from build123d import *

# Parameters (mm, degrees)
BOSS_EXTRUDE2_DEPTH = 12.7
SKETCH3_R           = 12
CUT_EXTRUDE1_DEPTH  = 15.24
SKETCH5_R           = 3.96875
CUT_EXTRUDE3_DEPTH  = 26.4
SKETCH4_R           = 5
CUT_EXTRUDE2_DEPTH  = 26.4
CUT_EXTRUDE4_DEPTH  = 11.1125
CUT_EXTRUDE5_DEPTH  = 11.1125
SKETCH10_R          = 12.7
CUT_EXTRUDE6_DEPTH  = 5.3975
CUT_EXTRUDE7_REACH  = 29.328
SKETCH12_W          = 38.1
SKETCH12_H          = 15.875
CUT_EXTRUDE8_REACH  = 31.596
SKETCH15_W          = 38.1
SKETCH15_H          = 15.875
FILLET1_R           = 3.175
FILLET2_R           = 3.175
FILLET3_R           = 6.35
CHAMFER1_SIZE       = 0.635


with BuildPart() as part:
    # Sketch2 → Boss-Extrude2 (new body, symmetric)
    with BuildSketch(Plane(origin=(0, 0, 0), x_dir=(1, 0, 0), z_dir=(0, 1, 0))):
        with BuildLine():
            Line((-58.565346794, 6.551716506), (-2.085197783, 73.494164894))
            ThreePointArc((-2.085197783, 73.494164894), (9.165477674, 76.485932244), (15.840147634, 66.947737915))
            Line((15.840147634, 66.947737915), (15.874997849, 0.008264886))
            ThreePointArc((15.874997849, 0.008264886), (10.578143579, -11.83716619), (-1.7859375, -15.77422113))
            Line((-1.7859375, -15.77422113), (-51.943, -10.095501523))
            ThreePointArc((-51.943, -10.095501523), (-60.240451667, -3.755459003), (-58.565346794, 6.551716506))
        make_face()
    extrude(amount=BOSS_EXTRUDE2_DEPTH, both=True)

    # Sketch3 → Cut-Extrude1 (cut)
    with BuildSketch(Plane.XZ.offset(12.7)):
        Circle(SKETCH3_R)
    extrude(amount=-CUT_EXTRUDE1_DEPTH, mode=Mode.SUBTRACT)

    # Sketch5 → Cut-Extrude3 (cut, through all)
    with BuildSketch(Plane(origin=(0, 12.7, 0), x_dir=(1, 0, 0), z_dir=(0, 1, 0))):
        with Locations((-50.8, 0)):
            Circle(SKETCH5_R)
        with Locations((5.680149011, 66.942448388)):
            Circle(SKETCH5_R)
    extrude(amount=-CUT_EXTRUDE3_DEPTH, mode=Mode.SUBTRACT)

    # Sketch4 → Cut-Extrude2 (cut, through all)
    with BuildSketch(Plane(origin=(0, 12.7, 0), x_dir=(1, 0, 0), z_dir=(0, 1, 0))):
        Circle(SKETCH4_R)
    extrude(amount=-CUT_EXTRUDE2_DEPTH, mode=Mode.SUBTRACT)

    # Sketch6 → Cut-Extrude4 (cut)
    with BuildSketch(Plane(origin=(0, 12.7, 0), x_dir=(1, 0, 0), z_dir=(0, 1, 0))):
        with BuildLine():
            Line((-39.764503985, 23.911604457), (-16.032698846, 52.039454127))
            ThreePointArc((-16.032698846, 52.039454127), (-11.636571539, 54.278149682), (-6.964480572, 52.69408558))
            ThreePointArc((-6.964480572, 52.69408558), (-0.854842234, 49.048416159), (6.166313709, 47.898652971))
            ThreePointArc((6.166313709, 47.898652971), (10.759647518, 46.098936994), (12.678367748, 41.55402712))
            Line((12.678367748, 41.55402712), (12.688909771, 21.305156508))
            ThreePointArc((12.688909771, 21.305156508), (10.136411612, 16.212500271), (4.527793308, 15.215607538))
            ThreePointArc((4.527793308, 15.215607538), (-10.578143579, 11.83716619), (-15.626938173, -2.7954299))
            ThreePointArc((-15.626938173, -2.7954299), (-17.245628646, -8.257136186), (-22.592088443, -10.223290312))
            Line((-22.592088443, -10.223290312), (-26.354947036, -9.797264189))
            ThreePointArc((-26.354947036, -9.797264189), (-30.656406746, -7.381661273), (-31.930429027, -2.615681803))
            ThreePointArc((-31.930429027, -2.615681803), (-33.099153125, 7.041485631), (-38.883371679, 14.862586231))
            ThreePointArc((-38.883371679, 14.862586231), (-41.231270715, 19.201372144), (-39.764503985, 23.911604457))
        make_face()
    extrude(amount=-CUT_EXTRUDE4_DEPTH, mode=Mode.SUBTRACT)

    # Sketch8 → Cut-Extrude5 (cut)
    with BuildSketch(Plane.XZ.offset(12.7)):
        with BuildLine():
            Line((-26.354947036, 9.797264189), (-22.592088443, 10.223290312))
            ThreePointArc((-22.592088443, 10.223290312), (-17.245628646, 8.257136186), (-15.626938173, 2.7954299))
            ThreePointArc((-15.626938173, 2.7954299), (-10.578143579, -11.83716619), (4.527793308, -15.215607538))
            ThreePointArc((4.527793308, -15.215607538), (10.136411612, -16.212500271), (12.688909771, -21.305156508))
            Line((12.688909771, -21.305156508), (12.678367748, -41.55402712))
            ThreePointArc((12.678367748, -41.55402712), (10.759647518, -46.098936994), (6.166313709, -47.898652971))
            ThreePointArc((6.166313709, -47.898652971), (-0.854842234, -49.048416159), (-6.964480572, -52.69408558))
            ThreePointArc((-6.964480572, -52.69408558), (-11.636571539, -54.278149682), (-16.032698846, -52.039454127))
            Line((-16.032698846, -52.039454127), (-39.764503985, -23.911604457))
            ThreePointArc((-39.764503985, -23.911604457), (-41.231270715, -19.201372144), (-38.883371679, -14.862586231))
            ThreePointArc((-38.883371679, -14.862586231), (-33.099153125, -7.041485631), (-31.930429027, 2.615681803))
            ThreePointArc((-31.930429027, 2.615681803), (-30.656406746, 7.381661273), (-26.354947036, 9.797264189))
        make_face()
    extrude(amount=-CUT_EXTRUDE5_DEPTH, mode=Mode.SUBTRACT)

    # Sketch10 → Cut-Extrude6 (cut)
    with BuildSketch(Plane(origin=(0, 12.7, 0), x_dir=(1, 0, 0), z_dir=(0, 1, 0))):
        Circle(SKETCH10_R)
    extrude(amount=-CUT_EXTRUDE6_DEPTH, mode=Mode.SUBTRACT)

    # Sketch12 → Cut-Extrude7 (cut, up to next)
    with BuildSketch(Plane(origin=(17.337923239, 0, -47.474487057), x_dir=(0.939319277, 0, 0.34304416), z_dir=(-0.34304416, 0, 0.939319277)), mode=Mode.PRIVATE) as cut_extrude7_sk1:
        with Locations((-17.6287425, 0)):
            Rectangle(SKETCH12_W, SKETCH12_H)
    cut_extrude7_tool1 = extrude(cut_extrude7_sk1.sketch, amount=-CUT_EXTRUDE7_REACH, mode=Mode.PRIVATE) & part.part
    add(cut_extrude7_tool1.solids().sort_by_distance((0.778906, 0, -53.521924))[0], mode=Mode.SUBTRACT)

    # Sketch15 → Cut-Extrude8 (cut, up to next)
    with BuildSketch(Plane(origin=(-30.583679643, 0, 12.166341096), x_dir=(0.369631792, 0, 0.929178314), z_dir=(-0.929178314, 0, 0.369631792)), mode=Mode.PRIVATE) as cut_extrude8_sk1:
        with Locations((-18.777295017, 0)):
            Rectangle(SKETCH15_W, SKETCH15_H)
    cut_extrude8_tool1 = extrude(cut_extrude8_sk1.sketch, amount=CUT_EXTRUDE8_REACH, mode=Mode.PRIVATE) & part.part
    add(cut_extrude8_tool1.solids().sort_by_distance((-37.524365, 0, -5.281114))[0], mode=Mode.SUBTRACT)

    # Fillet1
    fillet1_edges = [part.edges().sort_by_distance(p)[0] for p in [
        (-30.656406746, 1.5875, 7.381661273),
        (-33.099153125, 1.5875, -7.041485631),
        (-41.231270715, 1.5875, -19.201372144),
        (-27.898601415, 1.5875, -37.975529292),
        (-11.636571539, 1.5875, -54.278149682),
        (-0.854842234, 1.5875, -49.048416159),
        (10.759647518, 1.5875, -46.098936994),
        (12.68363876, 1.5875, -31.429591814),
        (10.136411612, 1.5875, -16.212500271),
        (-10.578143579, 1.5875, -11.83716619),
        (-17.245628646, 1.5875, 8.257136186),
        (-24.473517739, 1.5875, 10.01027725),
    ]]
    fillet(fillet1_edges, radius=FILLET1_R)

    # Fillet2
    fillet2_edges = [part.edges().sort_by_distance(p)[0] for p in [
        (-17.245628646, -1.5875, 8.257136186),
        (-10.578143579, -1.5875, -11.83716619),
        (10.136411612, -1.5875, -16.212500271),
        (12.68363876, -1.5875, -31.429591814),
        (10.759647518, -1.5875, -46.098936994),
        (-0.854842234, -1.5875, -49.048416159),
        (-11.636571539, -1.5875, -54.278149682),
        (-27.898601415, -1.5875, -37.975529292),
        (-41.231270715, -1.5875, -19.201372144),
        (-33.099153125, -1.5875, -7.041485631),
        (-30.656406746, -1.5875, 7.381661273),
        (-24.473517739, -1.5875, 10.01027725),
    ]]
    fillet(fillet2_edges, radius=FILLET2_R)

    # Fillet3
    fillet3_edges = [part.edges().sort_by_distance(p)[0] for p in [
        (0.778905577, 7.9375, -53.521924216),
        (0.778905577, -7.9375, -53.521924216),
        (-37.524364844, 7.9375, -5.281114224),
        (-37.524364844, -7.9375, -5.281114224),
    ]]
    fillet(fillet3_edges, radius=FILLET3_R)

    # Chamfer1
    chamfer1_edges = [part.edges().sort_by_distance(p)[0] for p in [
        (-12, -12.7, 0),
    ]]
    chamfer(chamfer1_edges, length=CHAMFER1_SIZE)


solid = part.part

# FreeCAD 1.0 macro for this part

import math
import FreeCAD as App
import Part
import Sketcher

V = App.Vector
Q = App.Units.Quantity


def edges_at(feature, points):
    """Names of the edges that pass closest to the given points."""
    edges = feature.Shape.Edges
    near = lambda p: min(range(len(edges)), key=lambda i: edges[i].distToShape(Part.Vertex(*p))[0])
    return sorted({f"Edge{near(p) + 1}" for p in points})

doc = App.newDocument("Part")
body = doc.addObject("PartDesign::Body", "Body")

# Sketch on XZ plane
sketch1 = doc.addObject("Sketcher::SketchObject", "Sketch")
body.addObject(sketch1)
sketch1.AttachmentSupport = (doc.XZ_Plane, [""])
sketch1.MapMode = "FlatFace"
sketch1.addGeometry([
    Part.LineSegment(V(-2, -73, 0), V(-59, -7, 0)),  # 0
    Part.ArcOfCircle(Part.Circle(V(-51, 0, 0), V(0, 0, 1), 10), math.radians(96), math.radians(220)),  # 1
    Part.LineSegment(V(-52, 10, 0), V(-2, 16, 0)),  # 2
    Part.ArcOfCircle(Part.Circle(V(0, 0, 0), V(0, 0, 1), 16), math.radians(0), math.radians(96)),  # 3
    Part.LineSegment(V(16, 0, 0), V(16, -67, 0)),  # 4
    Part.ArcOfCircle(Part.Circle(V(6, -67, 0), V(0, 0, 1), 10), math.radians(-140), math.radians(0)),  # 5
], False)
sketch1.addConstraint([
    Sketcher.Constraint("Tangent", 0, 2, 1, 2),
    Sketcher.Constraint("Tangent", 1, 1, 2, 1),
    Sketcher.Constraint("Tangent", 2, 2, 3, 2),
    Sketcher.Constraint("Tangent", 3, 1, 4, 1),
    Sketcher.Constraint("Tangent", 4, 2, 5, 2),
    Sketcher.Constraint("Tangent", 5, 1, 0, 1),
    Sketcher.Constraint("Coincident", 3, 3, -1, 1),
    Sketcher.Constraint("Equal", 1, 5),
    Sketcher.Constraint("PointOnObject", 1, 3, -1),
    Sketcher.Constraint("Radius", 1, Q("0.4 in")),
    Sketcher.Constraint("DistanceX", 1, 3, -1, 1, Q("2 in")),
    Sketcher.Constraint("Radius", 3, Q("0.625 in")),
    Sketcher.Constraint("DistanceY", 5, 1, 3, 1, Q("73.4859 mm")),
    Sketcher.Constraint("Distance", 0, Q("87.58595 mm")),
])
pad1 = doc.addObject("PartDesign::Pad", "Pad")
body.addObject(pad1)
pad1.Profile = sketch1
pad1.Length = Q("1 in")
pad1.Midplane = True

# Sketch on XZ plane
sketch2 = doc.addObject("Sketcher::SketchObject", "Sketch001")
body.addObject(sketch2)
sketch2.AttachmentSupport = (doc.XZ_Plane, [""])
sketch2.MapMode = "FlatFace"
sketch2.AttachmentOffset = App.Placement(V(0, 0, 0.5 * 25.4), App.Rotation())
sketch2.addGeometry(Part.Circle(V(0, 0, 0), V(0, 0, 1), 12), False)
sketch2.addConstraint([
    Sketcher.Constraint("Coincident", 0, 3, -1, 1),
    Sketcher.Constraint("Diameter", 0, Q("24 mm")),
])
pocket1 = doc.addObject("PartDesign::Pocket", "Pocket")
body.addObject(pocket1)
pocket1.Profile = sketch2
pocket1.Length = Q("0.6 in")

# Sketch on XZ plane
sketch3 = doc.addObject("Sketcher::SketchObject", "Sketch002")
body.addObject(sketch3)
sketch3.AttachmentSupport = (doc.XZ_Plane, [""])
sketch3.MapMode = "FlatFace"
sketch3.AttachmentOffset = App.Placement(V(0, 0, -0.5 * 25.4), App.Rotation())
sketch3.addGeometry([
    Part.Circle(V(-50.8, 0, 0), V(0, 0, 1), 4),
    Part.Circle(V(5.7, -66.9, 0), V(0, 0, 1), 4),
], False)
sketch3.addConstraint([
    Sketcher.Constraint("Equal", 0, 1),
    Sketcher.Constraint("PointOnObject", 0, 3, -1),
    Sketcher.Constraint("Diameter", 0, Q("0.3125 in")),
    Sketcher.Constraint("DistanceX", 0, 3, -1, 1, Q("2 in")),
    Sketcher.Constraint("DistanceX", -1, 1, 1, 3, Q("5.680149 mm")),
    Sketcher.Constraint("DistanceY", 1, 3, -1, 1, Q("66.942448 mm")),
])
pocket2 = doc.addObject("PartDesign::Pocket", "Pocket001")
body.addObject(pocket2)
pocket2.Profile = sketch3
pocket2.Type = "ThroughAll"
pocket2.Reversed = True

# Sketch on XZ plane
sketch4 = doc.addObject("Sketcher::SketchObject", "Sketch003")
body.addObject(sketch4)
sketch4.AttachmentSupport = (doc.XZ_Plane, [""])
sketch4.MapMode = "FlatFace"
sketch4.AttachmentOffset = App.Placement(V(0, 0, -0.5 * 25.4), App.Rotation())
sketch4.addGeometry(Part.Circle(V(0, 0, 0), V(0, 0, 1), 5), False)
sketch4.addConstraint([
    Sketcher.Constraint("Coincident", 0, 3, -1, 1),
    Sketcher.Constraint("Diameter", 0, Q("10 mm")),
])
pocket3 = doc.addObject("PartDesign::Pocket", "Pocket002")
body.addObject(pocket3)
pocket3.Profile = sketch4
pocket3.Type = "ThroughAll"
pocket3.Reversed = True

# Sketch on XZ plane
sketch5 = doc.addObject("Sketcher::SketchObject", "Sketch004")
body.addObject(sketch5)
sketch5.AttachmentSupport = (doc.XZ_Plane, [""])
sketch5.MapMode = "FlatFace"
sketch5.AttachmentOffset = App.Placement(V(0, 0, -0.5 * 25.4), App.Rotation())
sketch5.addGeometry([
    Part.LineSegment(V(-16, -52, 0), V(-39.8, -23.9, 0)),  # 0
    Part.ArcOfCircle(Part.Circle(V(-34.9, -19.8, 0), V(0, 0, 1), 6.3), math.radians(129), math.radians(220)),  # 1
    Part.ArcOfCircle(Part.Circle(V(-50.8, 0, 0), V(0, 0, 1), 19.1), math.radians(-51), math.radians(8)),  # 2
    Part.ArcOfCircle(Part.Circle(V(-25.6, 3.5, 0), V(0, 0, 1), 6.3), math.radians(96), math.radians(188)),  # 3
    Part.LineSegment(V(-26.4, 9.8, 0), V(-22.6, 10.2, 0)),  # 4
    Part.ArcOfCircle(Part.Circle(V(-21.9, 3.9, 0), V(0, 0, 1), 6.3), math.radians(-10), math.radians(96)),  # 5
    Part.ArcOfCircle(Part.Circle(V(0, 0, 0), V(0, 0, 1), 15.9), math.radians(170), math.radians(287)),  # 6
    Part.ArcOfCircle(Part.Circle(V(6.3, -21.3, 0), V(0, 0, 1), 6.4), math.radians(0), math.radians(107)),  # 7
    Part.LineSegment(V(12.7, -21.3, 0), V(12.7, -41.6, 0)),  # 8
    Part.ArcOfCircle(Part.Circle(V(6.3, -41.6, 0), V(0, 0, 1), 6.3), math.radians(-91), math.radians(0)),  # 9
    Part.ArcOfCircle(Part.Circle(V(5.7, -66.9, 0), V(0, 0, 1), 19.1), math.radians(89), math.radians(132)),  # 10
    Part.ArcOfCircle(Part.Circle(V(-11.2, -47.9, 0), V(0, 0, 1), 6.3), math.radians(-140), math.radians(-48)),  # 11
], False)
sketch5.addConstraint([
    Sketcher.Constraint("Tangent", 0, 2, 1, 2),
    Sketcher.Constraint("Tangent", 1, 1, 2, 1),
    Sketcher.Constraint("Tangent", 2, 2, 3, 2),
    Sketcher.Constraint("Tangent", 3, 1, 4, 1),
    Sketcher.Constraint("Tangent", 4, 2, 5, 2),
    Sketcher.Constraint("Tangent", 5, 1, 6, 1),
    Sketcher.Constraint("Tangent", 6, 2, 7, 2),
    Sketcher.Constraint("Tangent", 7, 1, 8, 1),
    Sketcher.Constraint("Tangent", 8, 2, 9, 2),
    Sketcher.Constraint("Tangent", 9, 1, 10, 1),
    Sketcher.Constraint("Tangent", 10, 2, 11, 2),
    Sketcher.Constraint("Tangent", 11, 1, 0, 1),
    Sketcher.Constraint("Coincident", 6, 3, -1, 1),
    Sketcher.Constraint("Equal", 1, 3),
    Sketcher.Constraint("Equal", 3, 5),
    Sketcher.Constraint("Equal", 5, 7),
    Sketcher.Constraint("Equal", 7, 9),
    Sketcher.Constraint("Equal", 2, 10),
    Sketcher.Constraint("Equal", 9, 11),
    Sketcher.Constraint("PointOnObject", 2, 3, -1),
    Sketcher.Constraint("Radius", 1, Q("0.25 in")),
    Sketcher.Constraint("Radius", 2, Q("0.75 in")),
    Sketcher.Constraint("DistanceX", 2, 3, -1, 1, Q("2 in")),
    Sketcher.Constraint("Radius", 6, Q("0.625 in")),
    Sketcher.Constraint("Distance", 4, Q("3.786899 mm")),
    Sketcher.Constraint("DistanceY", -1, 1, 5, 3, Q("3.913602 mm")),
    Sketcher.Constraint("DistanceX", 11, 1, -1, 1, Q("16.032699 mm")),
    Sketcher.Constraint("DistanceX", 1, 1, 3, 3, Q("13.2428 mm")),
    Sketcher.Constraint("DistanceY", 11, 1, 9, 1, Q("4.140801 mm")),
    Sketcher.Constraint("DistanceX", -1, 1, 7, 3, Q("6.338911 mm")),
    Sketcher.Constraint("DistanceX", -1, 1, 9, 3, Q("6.328369 mm")),
    Sketcher.Constraint("DistanceY", 9, 3, -1, 1, Q("41.550721 mm")),
])
pocket4 = doc.addObject("PartDesign::Pocket", "Pocket003")
body.addObject(pocket4)
pocket4.Profile = sketch5
pocket4.Length = Q("0.4375 in")
pocket4.Reversed = True

# Sketch on XZ plane
sketch6 = doc.addObject("Sketcher::SketchObject", "Sketch005")
body.addObject(sketch6)
sketch6.AttachmentSupport = (doc.XZ_Plane, [""])
sketch6.MapMode = "FlatFace"
sketch6.AttachmentOffset = App.Placement(V(0, 0, 0.5 * 25.4), App.Rotation())
sketch6.addGeometry([
    Part.LineSegment(V(-22.592088, 10.22329, 0), V(-26.354947, 9.797264, 0)),  # 0
    Part.ArcOfCircle(Part.Circle(V(-25.640572, 3.487576, 0), V(0, 0, 1), 6.35), math.radians(96.45945), math.radians(187.891994)),  # 1
    Part.ArcOfCircle(Part.Circle(V(-50.8, 0, 0), V(0, 0, 1), 19.05), math.radians(-51.277815), math.radians(7.891994)),  # 2
    Part.ArcOfCircle(Part.Circle(V(-34.911162, -19.816782, 0), V(0, 0, 1), 6.35), math.radians(128.722185), math.radians(220.154729)),  # 3
    Part.LineSegment(V(-39.764504, -23.911604, 0), V(-16.032699, -52.039454, 0)),  # 4
    Part.ArcOfCircle(Part.Circle(V(-11.179357, -47.944631, 0), V(0, 0, 1), 6.35), math.radians(-139.845271), math.radians(-48.412727)),  # 5
    Part.ArcOfCircle(Part.Circle(V(5.680149, -66.942448, 0), V(0, 0, 1), 19.05), math.radians(88.537627), math.radians(131.587273)),  # 6
    Part.ArcOfCircle(Part.Circle(V(6.328369, -41.550721, 0), V(0, 0, 1), 6.35), math.radians(-91.462373), math.radians(-0.029829)),  # 7
    Part.LineSegment(V(12.678368, -41.554027, 0), V(12.68891, -21.305157, 0)),  # 8
    Part.ArcOfCircle(Part.Circle(V(6.338911, -21.301851, 0), V(0, 0, 1), 6.35), math.radians(-0.029829), math.radians(106.57172)),  # 9
    Part.ArcOfCircle(Part.Circle(V(0, 0, 0), V(0, 0, 1), 15.875), math.radians(169.8579), math.radians(286.57172)),  # 10
    Part.ArcOfCircle(Part.Circle(V(-21.877713, 3.913602, 0), V(0, 0, 1), 6.35), math.radians(-10.1421), math.radians(96.45945)),  # 11
], False)
sketch6.addConstraint([
    Sketcher.Constraint("Coincident", 0, 2, 1, 1),
    Sketcher.Constraint("Coincident", 1, 2, 2, 2),
    Sketcher.Constraint("Coincident", 2, 1, 3, 1),
    Sketcher.Constraint("Coincident", 3, 2, 4, 1),
    Sketcher.Constraint("Coincident", 4, 2, 5, 1),
    Sketcher.Constraint("Coincident", 5, 2, 6, 2),
    Sketcher.Constraint("Coincident", 6, 1, 7, 1),
    Sketcher.Constraint("Coincident", 7, 2, 8, 1),
    Sketcher.Constraint("Coincident", 8, 2, 9, 1),
    Sketcher.Constraint("Coincident", 9, 2, 10, 2),
    Sketcher.Constraint("Coincident", 10, 1, 11, 1),
    Sketcher.Constraint("Coincident", 11, 2, 0, 1),
    Sketcher.Constraint("Coincident", 10, 3, -1, 1),
    Sketcher.Constraint("PointOnObject", 2, 3, -1),
    Sketcher.Constraint("Radius", 1, Q("0.25 in")),
    Sketcher.Constraint("Radius", 2, Q("0.75 in")),
    Sketcher.Constraint("Radius", 3, Q("0.25 in")),
    Sketcher.Constraint("Radius", 5, Q("0.25 in")),
    Sketcher.Constraint("Radius", 6, Q("0.75 in")),
    Sketcher.Constraint("Radius", 7, Q("0.25 in")),
    Sketcher.Constraint("Radius", 9, Q("0.25 in")),
    Sketcher.Constraint("Radius", 11, Q("0.25 in")),
    Sketcher.Constraint("DistanceX", 2, 3, -1, 1, Q("2 in")),
    Sketcher.Constraint("Radius", 10, Q("0.625 in")),
    Sketcher.Constraint("Distance", 0, Q("3.786899 mm")),
    Sketcher.Constraint("DistanceY", -1, 1, 11, 3, Q("3.913602 mm")),
    Sketcher.Constraint("DistanceX", 4, 2, -1, 1, Q("16.032699 mm")),
    Sketcher.Constraint("DistanceX", 2, 1, 1, 3, Q("13.2428 mm")),
    Sketcher.Constraint("DistanceY", 4, 2, 6, 1, Q("4.140801 mm")),
    Sketcher.Constraint("DistanceY", 3, 3, -1, 1, Q("19.816782 mm")),
    Sketcher.Constraint("DistanceY", 5, 3, -1, 1, Q("47.944631 mm")),
    Sketcher.Constraint("DistanceX", -1, 1, 6, 3, Q("5.680149 mm")),
    Sketcher.Constraint("DistanceY", 6, 3, -1, 1, Q("66.942448 mm")),
    Sketcher.Constraint("DistanceX", -1, 1, 7, 3, Q("6.328369 mm")),
    Sketcher.Constraint("DistanceX", -1, 1, 9, 3, Q("6.338911 mm")),
    Sketcher.Constraint("DistanceX", 1, 2, -1, 1, Q("31.930429 mm")),
    Sketcher.Constraint("DistanceX", 2, 1, -1, 1, Q("38.883372 mm")),
    Sketcher.Constraint("DistanceX", 5, 2, -1, 1, Q("6.964481 mm")),
    Sketcher.Constraint("DistanceX", 10, 1, -1, 1, Q("15.626938 mm")),
    Sketcher.Constraint("DistanceX", 11, 2, -1, 1, Q("22.592088 mm")),
    Sketcher.Constraint("DistanceX", 3, 2, 3, 3, Q("4.853342 mm")),
    Sketcher.Constraint("DistanceY", 5, 2, 7, 2, Q("11.140058 mm")),
    Sketcher.Constraint("DistanceY", 7, 2, 8, 2, Q("20.248871 mm")),
    Sketcher.Constraint("DistanceY", 8, 2, 9, 2, Q("6.089549 mm")),
])
pocket5 = doc.addObject("PartDesign::Pocket", "Pocket004")
body.addObject(pocket5)
pocket5.Profile = sketch6
pocket5.Length = Q("0.4375 in")

# Sketch on XZ plane
sketch7 = doc.addObject("Sketcher::SketchObject", "Sketch006")
body.addObject(sketch7)
sketch7.AttachmentSupport = (doc.XZ_Plane, [""])
sketch7.MapMode = "FlatFace"
sketch7.AttachmentOffset = App.Placement(V(0, 0, -0.5 * 25.4), App.Rotation())
sketch7.addGeometry(Part.Circle(V(0, 0, 0), V(0, 0, 1), 13), False)
sketch7.addConstraint([
    Sketcher.Constraint("Coincident", 0, 3, -1, 1),
    Sketcher.Constraint("Diameter", 0, Q("1 in")),
])
pocket6 = doc.addObject("PartDesign::Pocket", "Pocket005")
body.addObject(pocket6)
pocket6.Profile = sketch7
pocket6.Length = Q("0.2125 in")
pocket6.Reversed = True

# Sketch on an angled plane
sketch8 = doc.addObject("Sketcher::SketchObject", "Sketch007")
body.addObject(sketch8)
sketch8.Placement = App.Placement(V(17.337923, 0, -47.474487), App.Rotation(V(0.939319277, 0, 0.34304416), V(0, 1, 0), V(-0.34304416, 0, 0.939319277), "ZXY"))
sketch8.addGeometry([
    Part.LineSegment(V(-37, 8, 0), V(-37, -8, 0)),
    Part.LineSegment(V(-37, -8, 0), V(1, -8, 0)),
    Part.LineSegment(V(1, -8, 0), V(1, 8, 0)),
    Part.LineSegment(V(1, 8, 0), V(-37, 8, 0)),
], False)
sketch8.addConstraint([
    Sketcher.Constraint("Coincident", 0, 2, 1, 1),
    Sketcher.Constraint("Coincident", 1, 2, 2, 1),
    Sketcher.Constraint("Coincident", 2, 2, 3, 1),
    Sketcher.Constraint("Coincident", 3, 2, 0, 1),
    Sketcher.Constraint("Vertical", 0),
    Sketcher.Constraint("Horizontal", 1),
    Sketcher.Constraint("Vertical", 2),
    Sketcher.Constraint("Horizontal", 3),
    Sketcher.Constraint("DistanceX", 1, 1, 1, 2, Q("1.5 in")),
    Sketcher.Constraint("DistanceY", 0, 2, 0, 1, Q("0.625 in")),
    Sketcher.Constraint("DistanceY", 0, 2, -1, 1, Q("0.3125 in")),
    Sketcher.Constraint("DistanceX", 0, 2, -1, 1, Q("36.678742 mm")),
])
pocket7 = doc.addObject("PartDesign::Pocket", "Pocket006")
body.addObject(pocket7)
pocket7.Profile = sketch8
pocket7.Type = "UpToFirst"

# Sketch on an angled plane
sketch9 = doc.addObject("Sketcher::SketchObject", "Sketch008")
body.addObject(sketch9)
sketch9.Placement = App.Placement(V(-30.58368, 0, 12.166341), App.Rotation(V(0.369631792, 0, 0.929178314), V(0, 1.000000001, 0), V(-0.929178314, 0, 0.369631792), "ZXY"))
sketch9.addGeometry([
    Part.LineSegment(V(-38, 8, 0), V(-38, -8, 0)),
    Part.LineSegment(V(-38, -8, 0), V(0, -8, 0)),
    Part.LineSegment(V(0, -8, 0), V(0, 8, 0)),
    Part.LineSegment(V(0, 8, 0), V(-38, 8, 0)),
], False)
sketch9.addConstraint([
    Sketcher.Constraint("Coincident", 0, 2, 1, 1),
    Sketcher.Constraint("Coincident", 1, 2, 2, 1),
    Sketcher.Constraint("Coincident", 2, 2, 3, 1),
    Sketcher.Constraint("Coincident", 3, 2, 0, 1),
    Sketcher.Constraint("Vertical", 0),
    Sketcher.Constraint("Horizontal", 1),
    Sketcher.Constraint("Vertical", 2),
    Sketcher.Constraint("Horizontal", 3),
    Sketcher.Constraint("DistanceX", 1, 1, 1, 2, Q("1.5 in")),
    Sketcher.Constraint("DistanceY", 0, 2, 0, 1, Q("0.625 in")),
    Sketcher.Constraint("DistanceY", 0, 2, -1, 1, Q("0.3125 in")),
    Sketcher.Constraint("DistanceX", 0, 2, -1, 1, Q("37.827295 mm")),
])
pocket8 = doc.addObject("PartDesign::Pocket", "Pocket007")
body.addObject(pocket8)
pocket8.Profile = sketch9
pocket8.Type = "UpToFirst"
pocket8.Reversed = True
doc.recompute()

fillet = doc.addObject("PartDesign::Fillet", "Fillet")
body.addObject(fillet)
fillet.Base = (pocket8, edges_at(pocket8, [
    (-30.656, 1.587, 7.382),
    (-33.099, 1.587, -7.041),
    (-41.231, 1.587, -19.201),
    (-27.899, 1.587, -37.976),
    (-11.637, 1.587, -54.278),
    (-0.855, 1.587, -49.048),
    (10.76, 1.587, -46.099),
    (12.684, 1.587, -31.43),
    (10.136, 1.587, -16.213),
    (-10.578, 1.587, -11.837),
    (-17.246, 1.587, 8.257),
    (-24.474, 1.587, 10.01),
]))
fillet.Radius = Q("0.125 in")
doc.recompute()

fillet2 = doc.addObject("PartDesign::Fillet", "Fillet001")
body.addObject(fillet2)
fillet2.Base = (fillet, edges_at(fillet, [
    (-17.246, -1.587, 8.257),
    (-10.578, -1.587, -11.837),
    (10.136, -1.587, -16.213),
    (12.684, -1.587, -31.43),
    (10.76, -1.587, -46.099),
    (-0.855, -1.587, -49.048),
    (-11.637, -1.587, -54.278),
    (-27.899, -1.587, -37.976),
    (-41.231, -1.587, -19.201),
    (-33.099, -1.587, -7.041),
    (-30.656, -1.587, 7.382),
    (-24.474, -1.587, 10.01),
]))
fillet2.Radius = Q("0.125 in")
doc.recompute()

fillet3 = doc.addObject("PartDesign::Fillet", "Fillet002")
body.addObject(fillet3)
fillet3.Base = (fillet2, edges_at(fillet2, [
    (0.779, 7.938, -53.522),
    (0.779, -7.938, -53.522),
    (-37.524, 7.938, -5.281),
    (-37.524, -7.938, -5.281),
]))
fillet3.Radius = Q("0.25 in")
doc.recompute()

chamfer = doc.addObject("PartDesign::Chamfer", "Chamfer")
body.addObject(chamfer)
chamfer.Base = (fillet3, edges_at(fillet3, [(-12, -12.7, 0)]))
chamfer.Size = Q("0.025 in")

doc.recompute()
